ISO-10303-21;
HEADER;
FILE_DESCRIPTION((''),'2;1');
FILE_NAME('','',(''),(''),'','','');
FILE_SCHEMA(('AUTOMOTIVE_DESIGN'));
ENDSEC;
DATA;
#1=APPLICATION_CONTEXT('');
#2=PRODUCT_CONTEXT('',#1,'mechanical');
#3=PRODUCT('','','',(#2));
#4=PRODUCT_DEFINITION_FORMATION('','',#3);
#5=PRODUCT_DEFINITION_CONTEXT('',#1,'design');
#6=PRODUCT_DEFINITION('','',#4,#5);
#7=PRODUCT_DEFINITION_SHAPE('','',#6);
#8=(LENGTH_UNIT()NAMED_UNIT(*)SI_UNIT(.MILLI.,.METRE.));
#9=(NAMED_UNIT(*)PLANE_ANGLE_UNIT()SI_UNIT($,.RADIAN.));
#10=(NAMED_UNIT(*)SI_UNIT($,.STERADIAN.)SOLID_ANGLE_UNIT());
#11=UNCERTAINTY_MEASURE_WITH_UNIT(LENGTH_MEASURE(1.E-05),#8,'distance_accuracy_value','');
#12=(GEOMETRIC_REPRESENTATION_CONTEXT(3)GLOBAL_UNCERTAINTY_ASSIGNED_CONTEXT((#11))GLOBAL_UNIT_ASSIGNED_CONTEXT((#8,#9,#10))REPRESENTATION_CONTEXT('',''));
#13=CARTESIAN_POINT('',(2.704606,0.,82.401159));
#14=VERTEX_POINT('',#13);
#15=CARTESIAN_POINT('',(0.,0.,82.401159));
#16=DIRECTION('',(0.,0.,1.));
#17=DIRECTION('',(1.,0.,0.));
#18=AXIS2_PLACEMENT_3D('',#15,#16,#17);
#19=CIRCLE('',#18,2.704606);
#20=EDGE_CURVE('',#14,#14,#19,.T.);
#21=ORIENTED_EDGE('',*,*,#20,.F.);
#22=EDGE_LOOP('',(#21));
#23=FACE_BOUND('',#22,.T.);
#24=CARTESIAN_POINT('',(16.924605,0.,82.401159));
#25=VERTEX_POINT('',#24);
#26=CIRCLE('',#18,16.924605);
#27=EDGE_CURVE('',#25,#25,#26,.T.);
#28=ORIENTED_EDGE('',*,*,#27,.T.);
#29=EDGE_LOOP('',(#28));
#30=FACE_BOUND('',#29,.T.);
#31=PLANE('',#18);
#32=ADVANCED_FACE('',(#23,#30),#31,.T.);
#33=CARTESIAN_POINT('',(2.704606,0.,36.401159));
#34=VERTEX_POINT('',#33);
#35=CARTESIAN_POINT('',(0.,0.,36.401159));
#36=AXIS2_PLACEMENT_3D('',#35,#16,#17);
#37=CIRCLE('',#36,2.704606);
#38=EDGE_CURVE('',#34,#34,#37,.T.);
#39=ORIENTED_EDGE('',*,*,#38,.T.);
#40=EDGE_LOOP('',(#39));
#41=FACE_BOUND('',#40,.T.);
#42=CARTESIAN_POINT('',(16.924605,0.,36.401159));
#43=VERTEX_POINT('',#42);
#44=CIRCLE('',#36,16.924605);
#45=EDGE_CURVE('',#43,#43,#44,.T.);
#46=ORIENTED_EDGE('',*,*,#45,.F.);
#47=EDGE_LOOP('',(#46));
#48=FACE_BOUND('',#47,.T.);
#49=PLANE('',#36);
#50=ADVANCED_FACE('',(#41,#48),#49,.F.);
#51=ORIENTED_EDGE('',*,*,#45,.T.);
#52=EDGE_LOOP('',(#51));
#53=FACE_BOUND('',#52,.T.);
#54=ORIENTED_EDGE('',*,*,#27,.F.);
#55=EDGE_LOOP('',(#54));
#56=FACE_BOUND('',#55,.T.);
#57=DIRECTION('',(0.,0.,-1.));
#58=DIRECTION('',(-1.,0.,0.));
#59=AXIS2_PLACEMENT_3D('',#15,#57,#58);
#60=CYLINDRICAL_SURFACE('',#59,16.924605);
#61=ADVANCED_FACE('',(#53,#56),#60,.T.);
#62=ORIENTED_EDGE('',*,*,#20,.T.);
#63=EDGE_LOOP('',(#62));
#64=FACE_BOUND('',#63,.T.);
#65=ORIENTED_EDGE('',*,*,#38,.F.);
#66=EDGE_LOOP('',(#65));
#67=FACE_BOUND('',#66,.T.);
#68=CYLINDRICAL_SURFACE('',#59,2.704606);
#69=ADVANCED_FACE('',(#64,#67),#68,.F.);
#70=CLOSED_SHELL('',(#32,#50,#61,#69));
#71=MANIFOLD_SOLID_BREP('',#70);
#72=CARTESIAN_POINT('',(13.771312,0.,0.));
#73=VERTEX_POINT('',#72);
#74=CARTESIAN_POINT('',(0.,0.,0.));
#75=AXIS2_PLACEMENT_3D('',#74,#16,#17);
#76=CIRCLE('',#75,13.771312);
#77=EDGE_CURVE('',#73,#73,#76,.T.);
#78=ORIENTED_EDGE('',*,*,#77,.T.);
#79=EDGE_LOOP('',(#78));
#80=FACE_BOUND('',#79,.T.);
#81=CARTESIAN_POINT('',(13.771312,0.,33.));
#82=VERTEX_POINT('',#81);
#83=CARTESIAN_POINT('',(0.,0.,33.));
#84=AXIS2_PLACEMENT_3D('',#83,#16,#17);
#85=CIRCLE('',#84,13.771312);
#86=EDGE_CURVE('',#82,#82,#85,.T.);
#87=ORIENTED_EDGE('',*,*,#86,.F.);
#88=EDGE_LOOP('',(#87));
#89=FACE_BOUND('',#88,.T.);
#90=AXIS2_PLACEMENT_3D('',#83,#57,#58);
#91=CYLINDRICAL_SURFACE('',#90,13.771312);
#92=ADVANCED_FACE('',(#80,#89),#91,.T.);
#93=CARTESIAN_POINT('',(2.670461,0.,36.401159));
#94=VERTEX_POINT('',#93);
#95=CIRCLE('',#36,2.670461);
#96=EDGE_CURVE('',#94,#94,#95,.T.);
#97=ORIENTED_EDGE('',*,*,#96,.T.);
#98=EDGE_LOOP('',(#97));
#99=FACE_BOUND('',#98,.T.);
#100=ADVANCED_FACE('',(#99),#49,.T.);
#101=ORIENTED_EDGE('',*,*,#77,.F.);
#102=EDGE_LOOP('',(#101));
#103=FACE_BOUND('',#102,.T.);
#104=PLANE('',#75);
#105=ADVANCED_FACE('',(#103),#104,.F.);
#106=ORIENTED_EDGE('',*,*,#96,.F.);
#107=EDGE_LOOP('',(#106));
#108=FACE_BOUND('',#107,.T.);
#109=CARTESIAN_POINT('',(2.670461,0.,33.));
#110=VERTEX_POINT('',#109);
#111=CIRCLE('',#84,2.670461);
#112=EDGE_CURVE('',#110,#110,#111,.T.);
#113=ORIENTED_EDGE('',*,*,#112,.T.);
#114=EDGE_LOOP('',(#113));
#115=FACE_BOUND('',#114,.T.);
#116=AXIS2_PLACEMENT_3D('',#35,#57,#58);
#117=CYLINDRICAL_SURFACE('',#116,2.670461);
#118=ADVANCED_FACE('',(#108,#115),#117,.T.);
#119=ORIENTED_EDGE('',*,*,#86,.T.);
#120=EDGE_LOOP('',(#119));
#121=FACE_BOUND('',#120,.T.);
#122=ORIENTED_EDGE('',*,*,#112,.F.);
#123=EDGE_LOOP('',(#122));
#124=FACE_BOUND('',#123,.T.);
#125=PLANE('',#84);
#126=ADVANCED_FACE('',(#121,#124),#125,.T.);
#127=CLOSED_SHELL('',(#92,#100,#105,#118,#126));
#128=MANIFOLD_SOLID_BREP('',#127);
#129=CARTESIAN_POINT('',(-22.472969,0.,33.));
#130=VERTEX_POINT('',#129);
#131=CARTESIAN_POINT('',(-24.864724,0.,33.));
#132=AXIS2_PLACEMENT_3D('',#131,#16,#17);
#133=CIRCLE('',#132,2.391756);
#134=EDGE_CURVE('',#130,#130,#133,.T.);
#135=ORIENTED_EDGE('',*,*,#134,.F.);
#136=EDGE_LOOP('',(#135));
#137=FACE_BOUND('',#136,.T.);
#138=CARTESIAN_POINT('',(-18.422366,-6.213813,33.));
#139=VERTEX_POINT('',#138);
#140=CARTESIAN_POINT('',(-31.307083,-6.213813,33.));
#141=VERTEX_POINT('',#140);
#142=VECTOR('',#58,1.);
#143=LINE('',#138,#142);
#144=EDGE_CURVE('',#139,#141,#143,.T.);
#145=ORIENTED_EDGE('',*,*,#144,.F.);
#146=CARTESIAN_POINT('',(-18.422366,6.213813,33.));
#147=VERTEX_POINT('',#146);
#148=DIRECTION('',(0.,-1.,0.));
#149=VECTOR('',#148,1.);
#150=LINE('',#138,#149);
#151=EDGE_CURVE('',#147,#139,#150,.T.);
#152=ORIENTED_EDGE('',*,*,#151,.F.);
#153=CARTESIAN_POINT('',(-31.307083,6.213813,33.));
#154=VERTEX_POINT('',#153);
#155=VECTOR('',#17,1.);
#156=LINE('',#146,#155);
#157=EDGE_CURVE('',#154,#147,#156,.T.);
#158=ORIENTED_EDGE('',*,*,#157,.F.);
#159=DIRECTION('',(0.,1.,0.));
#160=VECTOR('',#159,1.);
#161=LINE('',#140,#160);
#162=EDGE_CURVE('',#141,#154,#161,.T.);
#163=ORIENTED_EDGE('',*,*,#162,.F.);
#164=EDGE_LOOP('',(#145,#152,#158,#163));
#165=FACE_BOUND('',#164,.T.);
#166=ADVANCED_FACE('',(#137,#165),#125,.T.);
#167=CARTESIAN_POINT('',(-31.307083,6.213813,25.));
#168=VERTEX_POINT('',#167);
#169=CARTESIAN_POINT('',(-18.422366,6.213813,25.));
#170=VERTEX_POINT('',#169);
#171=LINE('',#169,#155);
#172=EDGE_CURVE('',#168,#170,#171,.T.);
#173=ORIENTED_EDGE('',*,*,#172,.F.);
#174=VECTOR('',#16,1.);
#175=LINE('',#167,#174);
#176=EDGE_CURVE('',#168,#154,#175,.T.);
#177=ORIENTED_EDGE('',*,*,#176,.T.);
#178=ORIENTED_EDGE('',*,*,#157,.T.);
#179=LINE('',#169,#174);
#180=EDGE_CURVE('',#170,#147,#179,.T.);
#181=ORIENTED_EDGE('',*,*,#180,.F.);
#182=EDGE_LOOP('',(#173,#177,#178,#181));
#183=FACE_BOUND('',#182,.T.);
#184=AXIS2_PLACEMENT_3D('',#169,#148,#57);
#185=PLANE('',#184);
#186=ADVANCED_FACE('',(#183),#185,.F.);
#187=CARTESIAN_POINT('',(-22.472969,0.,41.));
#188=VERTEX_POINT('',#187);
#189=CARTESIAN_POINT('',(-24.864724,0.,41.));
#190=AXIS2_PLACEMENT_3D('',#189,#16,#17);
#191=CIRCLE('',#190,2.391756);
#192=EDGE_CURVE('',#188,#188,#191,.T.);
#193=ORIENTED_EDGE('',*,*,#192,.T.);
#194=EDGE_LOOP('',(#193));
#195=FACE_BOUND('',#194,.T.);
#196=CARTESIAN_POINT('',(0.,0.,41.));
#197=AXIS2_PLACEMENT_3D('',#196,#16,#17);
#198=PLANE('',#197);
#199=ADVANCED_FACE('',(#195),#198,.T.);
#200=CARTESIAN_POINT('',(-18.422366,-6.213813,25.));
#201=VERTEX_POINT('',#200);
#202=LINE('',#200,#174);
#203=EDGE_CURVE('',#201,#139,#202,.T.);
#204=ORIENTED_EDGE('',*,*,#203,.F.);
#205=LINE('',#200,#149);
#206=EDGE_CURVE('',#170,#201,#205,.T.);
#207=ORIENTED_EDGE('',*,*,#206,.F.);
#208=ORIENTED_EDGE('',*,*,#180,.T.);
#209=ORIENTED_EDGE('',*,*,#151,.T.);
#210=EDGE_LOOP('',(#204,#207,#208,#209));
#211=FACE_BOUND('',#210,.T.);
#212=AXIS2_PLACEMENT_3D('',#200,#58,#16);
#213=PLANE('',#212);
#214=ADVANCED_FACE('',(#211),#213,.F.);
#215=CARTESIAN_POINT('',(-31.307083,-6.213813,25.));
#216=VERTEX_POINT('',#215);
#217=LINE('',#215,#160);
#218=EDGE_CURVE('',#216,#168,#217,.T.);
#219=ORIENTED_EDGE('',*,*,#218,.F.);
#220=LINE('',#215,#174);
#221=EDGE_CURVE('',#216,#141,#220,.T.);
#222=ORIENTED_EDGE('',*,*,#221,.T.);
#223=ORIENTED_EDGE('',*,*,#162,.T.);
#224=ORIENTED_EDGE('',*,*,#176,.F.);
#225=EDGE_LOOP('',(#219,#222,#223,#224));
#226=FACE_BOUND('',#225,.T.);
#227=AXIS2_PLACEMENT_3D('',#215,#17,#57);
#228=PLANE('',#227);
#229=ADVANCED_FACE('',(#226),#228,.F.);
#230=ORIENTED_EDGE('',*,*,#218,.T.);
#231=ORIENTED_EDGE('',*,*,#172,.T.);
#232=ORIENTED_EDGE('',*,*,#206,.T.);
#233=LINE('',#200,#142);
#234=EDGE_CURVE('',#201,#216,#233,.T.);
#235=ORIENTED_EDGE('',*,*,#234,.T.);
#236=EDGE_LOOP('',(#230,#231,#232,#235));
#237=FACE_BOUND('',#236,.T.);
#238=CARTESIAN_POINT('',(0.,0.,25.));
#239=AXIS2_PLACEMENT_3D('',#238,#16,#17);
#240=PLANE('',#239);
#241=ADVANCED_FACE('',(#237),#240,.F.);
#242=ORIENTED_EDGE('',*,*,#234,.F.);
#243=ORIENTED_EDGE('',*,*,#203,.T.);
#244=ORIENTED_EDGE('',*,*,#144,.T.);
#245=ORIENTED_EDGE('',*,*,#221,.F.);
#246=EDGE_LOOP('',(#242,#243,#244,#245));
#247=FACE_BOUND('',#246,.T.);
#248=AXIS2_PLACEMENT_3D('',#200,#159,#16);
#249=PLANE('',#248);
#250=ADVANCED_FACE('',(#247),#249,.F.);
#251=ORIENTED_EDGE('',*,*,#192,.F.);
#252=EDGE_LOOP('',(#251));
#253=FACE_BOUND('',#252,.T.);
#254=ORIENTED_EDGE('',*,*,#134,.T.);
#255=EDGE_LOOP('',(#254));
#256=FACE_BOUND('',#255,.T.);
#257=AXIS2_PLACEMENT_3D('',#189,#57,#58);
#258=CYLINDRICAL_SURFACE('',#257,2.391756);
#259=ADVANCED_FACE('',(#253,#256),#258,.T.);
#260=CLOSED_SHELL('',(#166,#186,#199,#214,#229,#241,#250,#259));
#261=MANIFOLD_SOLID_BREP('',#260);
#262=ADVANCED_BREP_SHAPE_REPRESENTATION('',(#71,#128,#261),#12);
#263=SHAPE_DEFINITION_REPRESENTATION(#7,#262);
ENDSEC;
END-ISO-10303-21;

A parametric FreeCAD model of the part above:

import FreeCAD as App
import Part
import Sketcher
from FreeCAD import Vector
Q = App.Units.Quantity


def add_polygon(sketch, points):
    """Adds a closed chain of lines whose ends are joined by coincident constraints."""
    first, n = sketch.GeometryCount, len(points)
    for a, b in zip(points, points[1:] + points[:1]):
        sketch.addGeometry(Part.LineSegment(App.Vector(*a, 0), App.Vector(*b, 0)), False)
    for i in range(n):
        sketch.addConstraint(Sketcher.Constraint("Coincident", first + i, 2, first + (i + 1) % n, 1))

doc = App.newDocument("Part")
params = doc.addObject("Spreadsheet::Sheet", "Params")
for row, (alias, value) in enumerate([
    ("pad1_length", "33 mm"),
    ("pad2_length", "3.401159 mm"),
    ("pad3_length", "8 mm"),
    ("pad4_length", "8 mm"),
    ("pad5_length", "46 mm"),
], start=1):
    params.set(f"A{row}", alias)
    params.set(f"B{row}", "=" + value)
    params.setAlias(f"B{row}", alias)

body = doc.addObject("PartDesign::Body", "Body")

# Sketch on XY plane
sketch1 = body.newObject("Sketcher::SketchObject", "Sketch")
sketch1.AttachmentSupport = (doc.getObject("XY_Plane"), [""])
sketch1.MapMode = "FlatFace"
sketch1.addGeometry(Part.Circle(Vector(0, 0, 0), Vector(0, 0, 1), 13.771312), False)
sketch1.addConstraint([
    Sketcher.Constraint("Coincident", 0, 3, -1, 1),
    Sketcher.Constraint("Diameter", 0, Q("27.542623 mm")),
])
pad1 = body.newObject("PartDesign::Pad", "Pad")
pad1.Profile = sketch1
pad1.setExpression("Length", "Params.pad1_length")

# Sketch on XY plane
sketch2 = body.newObject("Sketcher::SketchObject", "Sketch001")
sketch2.AttachmentSupport = (doc.getObject("XY_Plane"), [""])
sketch2.MapMode = "FlatFace"
sketch2.AttachmentOffset = App.Placement(Vector(0, 0, 33), App.Rotation())
sketch2.addGeometry(Part.Circle(Vector(0, 0, 0), Vector(0, 0, 1), 2.670461), False)
sketch2.addConstraint([
    Sketcher.Constraint("Coincident", 0, 3, -1, 1),
    Sketcher.Constraint("Diameter", 0, Q("5.340921 mm")),
])
pad2 = body.newObject("PartDesign::Pad", "Pad001")
pad2.Profile = sketch2
pad2.setExpression("Length", "Params.pad2_length")
body2 = doc.addObject("PartDesign::Body", "Body001")

# Sketch on XY plane
sketch3 = body2.newObject("Sketcher::SketchObject", "Sketch002")
sketch3.AttachmentSupport = (doc.getObject("XY_Plane001"), [""])
sketch3.MapMode = "FlatFace"
sketch3.AttachmentOffset = App.Placement(Vector(0, 0, 33), App.Rotation())
sketch3.addGeometry(Part.Circle(Vector(-24.864724, 0, 0), Vector(0, 0, 1), 2.391756), False)
sketch3.addConstraint([
    Sketcher.Constraint("PointOnObject", 0, 3, -1),
    Sketcher.Constraint("Diameter", 0, Q("4.783512 mm")),
    Sketcher.Constraint("DistanceX", 0, 3, -1, 1, Q("24.864724 mm")),
])
pad3 = body2.newObject("PartDesign::Pad", "Pad002")
pad3.Profile = sketch3
pad3.setExpression("Length", "Params.pad3_length")

# Sketch on XY plane
sketch4 = body2.newObject("Sketcher::SketchObject", "Sketch003")
sketch4.AttachmentSupport = (doc.getObject("XY_Plane001"), [""])
sketch4.MapMode = "FlatFace"
sketch4.AttachmentOffset = App.Placement(Vector(0, 0, 33), App.Rotation())
add_polygon(sketch4, [(-18.422366, 6.213813), (-18.422366, -6.213813), (-31.307083, -6.213813), (-31.307083, 6.213813)])  # lines 0-3
sketch4.addConstraint([
    Sketcher.Constraint("Vertical", 0),
    Sketcher.Constraint("Horizontal", 1),
    Sketcher.Constraint("Vertical", 2),
    Sketcher.Constraint("Horizontal", 3),
    Sketcher.Constraint("DistanceX", 1, 2, 1, 1, Q("12.884718 mm")),
    Sketcher.Constraint("DistanceY", 0, 2, 0, 1, Q("12.427625 mm")),
    Sketcher.Constraint("DistanceX", 0, 2, -1, 1, Q("18.422366 mm")),
    Sketcher.Constraint("DistanceY", 0, 2, -1, 1, Q("6.213813 mm")),
])
pad4 = body2.newObject("PartDesign::Pad", "Pad003")
pad4.Profile = sketch4
pad4.setExpression("Length", "Params.pad4_length")
pad4.Reversed = True
body3 = doc.addObject("PartDesign::Body", "Body002")

# Sketch on XY plane
sketch5 = body3.newObject("Sketcher::SketchObject", "Sketch004")
sketch5.AttachmentSupport = (doc.getObject("XY_Plane002"), [""])
sketch5.MapMode = "FlatFace"
sketch5.AttachmentOffset = App.Placement(Vector(0, 0, 36.401159), App.Rotation())
sketch5.addGeometry([
    Part.Circle(Vector(0, 0, 0), Vector(0, 0, 1), 16.924605),
    Part.Circle(Vector(0, 0, 0), Vector(0, 0, 1), 2.704606),
], False)
sketch5.addConstraint([
    Sketcher.Constraint("Coincident", 0, 3, -1, 1),
    Sketcher.Constraint("Coincident", 1, 3, -1, 1),
    Sketcher.Constraint("Diameter", 0, Q("33.849209 mm")),
    Sketcher.Constraint("Diameter", 1, Q("5.409212 mm")),
])
pad5 = body3.newObject("PartDesign::Pad", "Pad004")
pad5.Profile = sketch5
pad5.setExpression("Length", "Params.pad5_length")

doc.recompute()
